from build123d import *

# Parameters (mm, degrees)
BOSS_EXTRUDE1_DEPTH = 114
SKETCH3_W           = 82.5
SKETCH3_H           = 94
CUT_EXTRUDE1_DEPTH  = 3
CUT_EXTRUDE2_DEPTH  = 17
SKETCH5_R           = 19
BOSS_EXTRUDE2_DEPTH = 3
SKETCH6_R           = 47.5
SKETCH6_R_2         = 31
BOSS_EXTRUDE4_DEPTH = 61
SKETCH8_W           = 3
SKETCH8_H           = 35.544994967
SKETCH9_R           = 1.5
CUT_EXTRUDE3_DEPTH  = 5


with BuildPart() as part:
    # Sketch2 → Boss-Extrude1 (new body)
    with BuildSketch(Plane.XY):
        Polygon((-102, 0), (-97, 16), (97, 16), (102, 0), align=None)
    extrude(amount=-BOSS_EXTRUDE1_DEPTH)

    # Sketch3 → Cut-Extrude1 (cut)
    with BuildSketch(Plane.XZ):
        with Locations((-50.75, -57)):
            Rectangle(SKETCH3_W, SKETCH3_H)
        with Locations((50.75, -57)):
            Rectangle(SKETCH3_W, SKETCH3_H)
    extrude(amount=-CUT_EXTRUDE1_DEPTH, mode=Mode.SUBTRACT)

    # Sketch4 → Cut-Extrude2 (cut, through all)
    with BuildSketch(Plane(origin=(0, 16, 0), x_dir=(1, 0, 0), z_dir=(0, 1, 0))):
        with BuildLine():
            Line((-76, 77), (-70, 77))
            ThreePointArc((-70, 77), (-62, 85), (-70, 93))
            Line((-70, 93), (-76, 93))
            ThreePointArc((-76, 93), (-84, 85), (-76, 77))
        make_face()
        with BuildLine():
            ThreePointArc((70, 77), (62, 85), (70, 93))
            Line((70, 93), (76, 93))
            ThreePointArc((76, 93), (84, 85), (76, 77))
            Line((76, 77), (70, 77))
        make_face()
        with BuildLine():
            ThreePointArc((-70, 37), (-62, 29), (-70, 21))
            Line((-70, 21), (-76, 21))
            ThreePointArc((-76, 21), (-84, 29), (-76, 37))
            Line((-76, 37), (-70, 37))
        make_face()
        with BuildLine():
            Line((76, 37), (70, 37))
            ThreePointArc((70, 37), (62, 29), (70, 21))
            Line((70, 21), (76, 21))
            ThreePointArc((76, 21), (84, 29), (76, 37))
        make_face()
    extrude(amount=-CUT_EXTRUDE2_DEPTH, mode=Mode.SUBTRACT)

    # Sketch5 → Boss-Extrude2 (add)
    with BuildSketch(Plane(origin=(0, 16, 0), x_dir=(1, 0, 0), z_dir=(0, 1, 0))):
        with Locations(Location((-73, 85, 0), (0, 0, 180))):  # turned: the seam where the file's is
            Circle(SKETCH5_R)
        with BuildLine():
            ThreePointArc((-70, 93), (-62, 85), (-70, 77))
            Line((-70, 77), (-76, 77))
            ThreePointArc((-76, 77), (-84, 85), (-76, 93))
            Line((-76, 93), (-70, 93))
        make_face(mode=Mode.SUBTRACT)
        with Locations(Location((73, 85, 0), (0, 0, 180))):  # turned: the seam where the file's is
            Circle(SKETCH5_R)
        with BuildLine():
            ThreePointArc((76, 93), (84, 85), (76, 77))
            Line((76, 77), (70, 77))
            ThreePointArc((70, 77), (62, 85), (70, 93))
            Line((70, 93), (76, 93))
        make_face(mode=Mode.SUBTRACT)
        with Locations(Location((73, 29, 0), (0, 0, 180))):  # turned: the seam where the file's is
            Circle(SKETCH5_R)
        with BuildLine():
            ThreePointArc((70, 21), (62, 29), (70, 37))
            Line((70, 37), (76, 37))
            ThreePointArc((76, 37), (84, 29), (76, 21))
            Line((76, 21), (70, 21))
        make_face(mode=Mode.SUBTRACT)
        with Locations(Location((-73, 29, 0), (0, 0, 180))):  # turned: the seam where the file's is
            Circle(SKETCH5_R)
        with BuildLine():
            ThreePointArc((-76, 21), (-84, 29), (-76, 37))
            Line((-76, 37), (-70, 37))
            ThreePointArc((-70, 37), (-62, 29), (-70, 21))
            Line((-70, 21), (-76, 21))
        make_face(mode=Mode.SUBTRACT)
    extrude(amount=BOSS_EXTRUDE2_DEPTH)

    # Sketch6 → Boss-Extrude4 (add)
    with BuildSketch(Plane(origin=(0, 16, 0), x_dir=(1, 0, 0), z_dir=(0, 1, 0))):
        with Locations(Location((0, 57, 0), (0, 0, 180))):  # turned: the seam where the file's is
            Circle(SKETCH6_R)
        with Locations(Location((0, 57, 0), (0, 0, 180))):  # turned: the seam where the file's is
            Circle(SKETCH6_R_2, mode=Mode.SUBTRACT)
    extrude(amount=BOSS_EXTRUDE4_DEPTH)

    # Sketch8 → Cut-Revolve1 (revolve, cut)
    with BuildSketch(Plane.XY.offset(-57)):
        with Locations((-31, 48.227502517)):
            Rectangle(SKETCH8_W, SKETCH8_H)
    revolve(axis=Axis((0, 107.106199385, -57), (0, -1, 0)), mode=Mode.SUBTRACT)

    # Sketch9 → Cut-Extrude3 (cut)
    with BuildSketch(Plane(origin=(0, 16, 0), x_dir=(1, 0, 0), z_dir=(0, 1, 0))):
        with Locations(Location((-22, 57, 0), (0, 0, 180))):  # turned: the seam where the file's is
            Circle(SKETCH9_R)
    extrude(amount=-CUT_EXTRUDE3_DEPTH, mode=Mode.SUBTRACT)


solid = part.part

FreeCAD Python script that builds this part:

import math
import FreeCAD as App
import Part
import Sketcher

doc = App.newDocument("Part")
params = doc.addObject("Spreadsheet::Sheet", "Params")
for row, (alias, value) in enumerate([
    ("sketch1_width", "204 mm"),
    ("sketch1_width2", "194 mm"),
    ("pad1_length", "114 mm"),
    ("sketch2_height", "94 mm"),
    ("sketch2_width", "82.5 mm"),
    ("pocket1_length", "3 mm"),
    ("sketch3_radius", "8 mm"),
    ("sketch3_width", "6 mm"),
    ("sketch4_diameter", "38 mm"),
    ("sketch4_radius", "8 mm"),
    ("sketch4_width", "6 mm"),
    ("pad2_length", "3 mm"),
    ("sketch5_diameter", "95 mm"),
    ("sketch5_diameter2", "62 mm"),
    ("pad3_length", "61 mm"),
    ("sketch6_width", "3 mm"),
    ("groove_angle", "360 deg"),
    ("sketch7_diameter", "3 mm"),
    ("pocket3_length", "5 mm"),
], start=1):
    params.set(f"A{row}", alias)
    params.set(f"B{row}", "=" + value)
    params.setAlias(f"B{row}", alias)

body = doc.addObject("PartDesign::Body", "Body")

sketch1 = body.newObject("Sketcher::SketchObject", "Sketch")
sketch1.AttachmentSupport = (doc.getObject("XY_Plane"), [""])
sketch1.MapMode = "FlatFace"
sketch1.addGeometry([
    Part.LineSegment(App.Vector(-97, 16, 0), App.Vector(-102, 0, 0)),
    Part.LineSegment(App.Vector(-102, 0, 0), App.Vector(102, 0, 0)),
    Part.LineSegment(App.Vector(102, 0, 0), App.Vector(97, 16, 0)),
    Part.LineSegment(App.Vector(97, 16, 0), App.Vector(-97, 16, 0)),
], False)
sketch1.addConstraint([
    Sketcher.Constraint("Coincident", 0, 2, 1, 1),
    Sketcher.Constraint("Coincident", 1, 2, 2, 1),
    Sketcher.Constraint("Coincident", 2, 2, 3, 1),
    Sketcher.Constraint("Coincident", 3, 2, 0, 1),
    Sketcher.Constraint("Horizontal", 1),
    Sketcher.Constraint("Horizontal", 3),
    Sketcher.Constraint("Symmetric", 0, 2, 1, 2, -1, 1),
    Sketcher.Constraint("Equal", 0, 2),
    Sketcher.Constraint("DistanceX", 1, 1, 1, 2, 204.0),
    Sketcher.Constraint("DistanceX", 3, 2, 3, 1, 194.0),
    Sketcher.Constraint("DistanceY", -1, 1, 2, 2, 16.0),
])
sketch1.setExpression("Constraints[8]", "Params.sketch1_width")
sketch1.setExpression("Constraints[9]", "Params.sketch1_width2")
pad1 = body.newObject("PartDesign::Pad", "Pad")
pad1.Profile = sketch1
pad1.setExpression("Length", "Params.pad1_length")
pad1.Reversed = True

sketch2 = body.newObject("Sketcher::SketchObject", "Sketch001")
sketch2.AttachmentSupport = (doc.getObject("XZ_Plane"), [""])
sketch2.MapMode = "FlatFace"
sketch2.addGeometry([
    Part.LineSegment(App.Vector(-92, -10, 0), App.Vector(-92, -104, 0)),
    Part.LineSegment(App.Vector(-92, -104, 0), App.Vector(-10, -104, 0)),
    Part.LineSegment(App.Vector(-10, -104, 0), App.Vector(-10, -10, 0)),
    Part.LineSegment(App.Vector(-10, -10, 0), App.Vector(-92, -10, 0)),
    Part.LineSegment(App.Vector(10, -10, 0), App.Vector(10, -104, 0)),
    Part.LineSegment(App.Vector(10, -104, 0), App.Vector(92, -104, 0)),
    Part.LineSegment(App.Vector(92, -104, 0), App.Vector(92, -10, 0)),
    Part.LineSegment(App.Vector(92, -10, 0), App.Vector(10, -10, 0)),
], False)
sketch2.addConstraint([
    Sketcher.Constraint("Coincident", 0, 2, 1, 1),
    Sketcher.Constraint("Coincident", 1, 2, 2, 1),
    Sketcher.Constraint("Coincident", 2, 2, 3, 1),
    Sketcher.Constraint("Coincident", 3, 2, 0, 1),
    Sketcher.Constraint("Coincident", 4, 2, 5, 1),
    Sketcher.Constraint("Coincident", 5, 2, 6, 1),
    Sketcher.Constraint("Coincident", 6, 2, 7, 1),
    Sketcher.Constraint("Coincident", 7, 2, 4, 1),
    Sketcher.Constraint("Vertical", 0),
    Sketcher.Constraint("Horizontal", 1),
    Sketcher.Constraint("Vertical", 2),
    Sketcher.Constraint("Horizontal", 3),
    Sketcher.Constraint("Vertical", 4),
    Sketcher.Constraint("Horizontal", 5),
    Sketcher.Constraint("Vertical", 6),
    Sketcher.Constraint("Horizontal", 7),
    Sketcher.Constraint("Symmetric", 1, 2, 4, 2, -2),
    Sketcher.Constraint("Symmetric", 3, 2, 6, 2, -2),
    Sketcher.Constraint("DistanceY", 0, 2, 0, 1, 94.0),
    Sketcher.Constraint("DistanceX", 1, 1, 1, 2, 82.5),
    Sketcher.Constraint("DistanceX", 0, 2, -1, 1, 92.0),
    Sketcher.Constraint("DistanceY", 0, 2, -1, 1, 104.0),
])
sketch2.setExpression("Constraints[18]", "Params.sketch2_height")
sketch2.setExpression("Constraints[19]", "Params.sketch2_width")
pocket1 = body.newObject("PartDesign::Pocket", "Pocket")
pocket1.Profile = sketch2
pocket1.setExpression("Length", "Params.pocket1_length")

sketch3 = body.newObject("Sketcher::SketchObject", "Sketch002")
sketch3.AttachmentSupport = (doc.getObject("XZ_Plane"), [""])
sketch3.MapMode = "FlatFace"
sketch3.AttachmentOffset = App.Placement(App.Vector(0, 0, -16), App.Rotation())
sketch3.addGeometry([
    Part.LineSegment(App.Vector(-76, -77, 0), App.Vector(-70, -77, 0)),
    Part.ArcOfCircle(Part.Circle(App.Vector(-70, -85, 0), App.Vector(0, 0, 1), 8), math.radians(-90), math.radians(90)),
    Part.LineSegment(App.Vector(-70, -93, 0), App.Vector(-76, -93, 0)),
    Part.ArcOfCircle(Part.Circle(App.Vector(-76, -85, 0), App.Vector(0, 0, 1), 8), math.radians(90), math.radians(270)),
    Part.ArcOfCircle(Part.Circle(App.Vector(70, -85, 0), App.Vector(0, 0, 1), 8), math.radians(90), math.radians(270)),
    Part.LineSegment(App.Vector(70, -77, 0), App.Vector(76, -77, 0)),
    Part.ArcOfCircle(Part.Circle(App.Vector(76, -85, 0), App.Vector(0, 0, 1), 8), math.radians(-90), math.radians(90)),
    Part.LineSegment(App.Vector(76, -93, 0), App.Vector(70, -93, 0)),
    Part.ArcOfCircle(Part.Circle(App.Vector(-70, -29, 0), App.Vector(0, 0, 1), 8), math.radians(-90), math.radians(90)),
    Part.LineSegment(App.Vector(-70, -37, 0), App.Vector(-76, -37, 0)),
    Part.ArcOfCircle(Part.Circle(App.Vector(-76, -29, 0), App.Vector(0, 0, 1), 8), math.radians(90), math.radians(270)),
    Part.LineSegment(App.Vector(-76, -21, 0), App.Vector(-70, -21, 0)),
    Part.LineSegment(App.Vector(76, -37, 0), App.Vector(70, -37, 0)),
    Part.ArcOfCircle(Part.Circle(App.Vector(70, -29, 0), App.Vector(0, 0, 1), 8), math.radians(90), math.radians(270)),
    Part.LineSegment(App.Vector(70, -21, 0), App.Vector(76, -21, 0)),
    Part.ArcOfCircle(Part.Circle(App.Vector(76, -29, 0), App.Vector(0, 0, 1), 8), math.radians(-90), math.radians(90)),
], False)
sketch3.addConstraint([
    Sketcher.Constraint("Tangent", 0, 2, 1, 2),
    Sketcher.Constraint("Tangent", 1, 1, 2, 1),
    Sketcher.Constraint("Tangent", 2, 2, 3, 2),
    Sketcher.Constraint("Tangent", 3, 1, 0, 1),
    Sketcher.Constraint("Tangent", 4, 1, 5, 1),
    Sketcher.Constraint("Tangent", 5, 2, 6, 2),
    Sketcher.Constraint("Tangent", 6, 1, 7, 1),
    Sketcher.Constraint("Tangent", 7, 2, 4, 2),
    Sketcher.Constraint("Tangent", 8, 1, 9, 1),
    Sketcher.Constraint("Tangent", 9, 2, 10, 2),
    Sketcher.Constraint("Tangent", 10, 1, 11, 1),
    Sketcher.Constraint("Tangent", 11, 2, 8, 2),
    Sketcher.Constraint("Tangent", 12, 2, 13, 2),
    Sketcher.Constraint("Tangent", 13, 1, 14, 1),
    Sketcher.Constraint("Tangent", 14, 2, 15, 2),
    Sketcher.Constraint("Tangent", 15, 1, 12, 1),
    Sketcher.Constraint("Horizontal", 0),
    Sketcher.Constraint("Horizontal", 2),
    Sketcher.Constraint("Horizontal", 5),
    Sketcher.Constraint("Horizontal", 7),
    Sketcher.Constraint("Horizontal", 9),
    Sketcher.Constraint("Horizontal", 11),
    Sketcher.Constraint("Horizontal", 12),
    Sketcher.Constraint("Horizontal", 14),
    Sketcher.Constraint("Equal", 3, 4),
    Sketcher.Constraint("Equal", 6, 8),
    Sketcher.Constraint("Equal", 10, 13),
    Sketcher.Constraint("Symmetric", 1, 3, 4, 3, -2),
    Sketcher.Constraint("Symmetric", 8, 3, 13, 3, -2),
    Sketcher.Constraint("Vertical", 1, 3, 8, 3),
    Sketcher.Constraint("Vertical", 3, 3, 10, 3),
    Sketcher.Constraint("Vertical", 6, 3, 15, 3),
    Sketcher.Constraint("Equal", 2, 5),
    Sketcher.Constraint("Radius", 1, 8.0),
    Sketcher.Constraint("DistanceX", 0, 1, 0, 2, 6.0),
    Sketcher.Constraint("DistanceX", 1, 3, -1, 1, 70.0),
    Sketcher.Constraint("DistanceY", 1, 3, -1, 1, 85.0),
    Sketcher.Constraint("DistanceY", 8, 3, -1, 1, 29.0),
])
sketch3.setExpression("Constraints[33]", "Params.sketch3_radius")
sketch3.setExpression("Constraints[34]", "Params.sketch3_width")
pocket2 = body.newObject("PartDesign::Pocket", "Pocket001")
pocket2.Profile = sketch3
pocket2.Type = "ThroughAll"
pocket2.Reversed = True

sketch4 = body.newObject("Sketcher::SketchObject", "Sketch003")
sketch4.AttachmentSupport = (doc.getObject("XZ_Plane"), [""])
sketch4.MapMode = "FlatFace"
sketch4.AttachmentOffset = App.Placement(App.Vector(0, 0, -16), App.Rotation())
sketch4.addGeometry([
    Part.Circle(App.Vector(-73, -85, 0), App.Vector(0, 0, 1), 19),
    Part.LineSegment(App.Vector(-76, -93, 0), App.Vector(-70, -93, 0)),
    Part.ArcOfCircle(Part.Circle(App.Vector(-70, -85, 0), App.Vector(0, 0, 1), 8), math.radians(-90), math.radians(90)),
    Part.LineSegment(App.Vector(-70, -77, 0), App.Vector(-76, -77, 0)),
    Part.ArcOfCircle(Part.Circle(App.Vector(-76, -85, 0), App.Vector(0, 0, 1), 8), math.radians(90), math.radians(270)),
    Part.Circle(App.Vector(73, -85, 0), App.Vector(0, 0, 1), 19),
    Part.LineSegment(App.Vector(70, -93, 0), App.Vector(76, -93, 0)),
    Part.ArcOfCircle(Part.Circle(App.Vector(76, -85, 0), App.Vector(0, 0, 1), 8), math.radians(-90), math.radians(90)),
    Part.LineSegment(App.Vector(76, -77, 0), App.Vector(70, -77, 0)),
    Part.ArcOfCircle(Part.Circle(App.Vector(70, -85, 0), App.Vector(0, 0, 1), 8), math.radians(90), math.radians(270)),
    Part.Circle(App.Vector(73, -29, 0), App.Vector(0, 0, 1), 19),
    Part.LineSegment(App.Vector(76, -21, 0), App.Vector(70, -21, 0)),
    Part.ArcOfCircle(Part.Circle(App.Vector(70, -29, 0), App.Vector(0, 0, 1), 8), math.radians(90), math.radians(270)),
    Part.LineSegment(App.Vector(70, -37, 0), App.Vector(76, -37, 0)),
    Part.ArcOfCircle(Part.Circle(App.Vector(76, -29, 0), App.Vector(0, 0, 1), 8), math.radians(-90), math.radians(90)),
    Part.Circle(App.Vector(-73, -29, 0), App.Vector(0, 0, 1), 19),
    Part.LineSegment(App.Vector(-70, -21, 0), App.Vector(-76, -21, 0)),
    Part.ArcOfCircle(Part.Circle(App.Vector(-76, -29, 0), App.Vector(0, 0, 1), 8), math.radians(90), math.radians(270)),
    Part.LineSegment(App.Vector(-76, -37, 0), App.Vector(-70, -37, 0)),
    Part.ArcOfCircle(Part.Circle(App.Vector(-70, -29, 0), App.Vector(0, 0, 1), 8), math.radians(-90), math.radians(90)),
], False)
sketch4.addConstraint([
    Sketcher.Constraint("Tangent", 1, 2, 2, 1),
    Sketcher.Constraint("Tangent", 2, 2, 3, 1),
    Sketcher.Constraint("Tangent", 3, 2, 4, 1),
    Sketcher.Constraint("Tangent", 4, 2, 1, 1),
    Sketcher.Constraint("Tangent", 6, 2, 7, 1),
    Sketcher.Constraint("Tangent", 7, 2, 8, 1),
    Sketcher.Constraint("Tangent", 8, 2, 9, 1),
    Sketcher.Constraint("Tangent", 9, 2, 6, 1),
    Sketcher.Constraint("Tangent", 11, 2, 12, 1),
    Sketcher.Constraint("Tangent", 12, 2, 13, 1),
    Sketcher.Constraint("Tangent", 13, 2, 14, 1),
    Sketcher.Constraint("Tangent", 14, 2, 11, 1),
    Sketcher.Constraint("Tangent", 16, 2, 17, 1),
    Sketcher.Constraint("Tangent", 17, 2, 18, 1),
    Sketcher.Constraint("Tangent", 18, 2, 19, 1),
    Sketcher.Constraint("Tangent", 19, 2, 16, 1),
    Sketcher.Constraint("Horizontal", 1),
    Sketcher.Constraint("Horizontal", 3),
    Sketcher.Constraint("Horizontal", 6),
    Sketcher.Constraint("Horizontal", 8),
    Sketcher.Constraint("Horizontal", 11),
    Sketcher.Constraint("Horizontal", 13),
    Sketcher.Constraint("Horizontal", 16),
    Sketcher.Constraint("Horizontal", 18),
    Sketcher.Constraint("Equal", 0, 5),
    Sketcher.Constraint("Equal", 4, 7),
    Sketcher.Constraint("Equal", 5, 10),
    Sketcher.Constraint("Equal", 9, 12),
    Sketcher.Constraint("Equal", 10, 15),
    Sketcher.Constraint("Equal", 14, 17),
    Sketcher.Constraint("Symmetric", 0, 3, 5, 3, -2),
    Sketcher.Constraint("Symmetric", 4, 3, 7, 3, -2),
    Sketcher.Constraint("Symmetric", 10, 3, 15, 3, -2),
    Sketcher.Constraint("Symmetric", 14, 3, 17, 3, -2),
    Sketcher.Constraint("Horizontal", 0, 3, 2, 3),
    Sketcher.Constraint("Horizontal", 10, 3, 12, 3),
    Sketcher.Constraint("Vertical", 5, 3, 10, 3),
    Sketcher.Constraint("Vertical", 9, 3, 12, 3),
    Sketcher.Constraint("Vertical", 7, 3, 14, 3),
    Sketcher.Constraint("Vertical", 2, 3, 19, 3),
    Sketcher.Constraint("Equal", 3, 6),
    Sketcher.Constraint("Diameter", 0, 38.0),
    Sketcher.Constraint("Radius", 2, 8.0),
    Sketcher.Constraint("DistanceX", 1, 1, 1, 2, 6.0),
    Sketcher.Constraint("DistanceX", 0, 3, -1, 1, 73.0),
    Sketcher.Constraint("DistanceY", 0, 3, -1, 1, 85.0),
    Sketcher.Constraint("DistanceX", 2, 3, -1, 1, 70.0),
    Sketcher.Constraint("DistanceY", 10, 3, -1, 1, 29.0),
])
sketch4.setExpression("Constraints[41]", "Params.sketch4_diameter")
sketch4.setExpression("Constraints[42]", "Params.sketch4_radius")
sketch4.setExpression("Constraints[43]", "Params.sketch4_width")
pad2 = body.newObject("PartDesign::Pad", "Pad001")
pad2.Profile = sketch4
pad2.setExpression("Length", "Params.pad2_length")
pad2.Reversed = True

sketch5 = body.newObject("Sketcher::SketchObject", "Sketch004")
sketch5.AttachmentSupport = (doc.getObject("XZ_Plane"), [""])
sketch5.MapMode = "FlatFace"
sketch5.AttachmentOffset = App.Placement(App.Vector(0, 0, -16), App.Rotation())
sketch5.addGeometry([
    Part.Circle(App.Vector(0, -57, 0), App.Vector(0, 0, 1), 48),
    Part.Circle(App.Vector(0, -57, 0), App.Vector(0, 0, 1), 31),
], False)
sketch5.addConstraint([
    Sketcher.Constraint("Coincident", 1, 3, 0, 3),
    Sketcher.Constraint("PointOnObject", 0, 3, -2),
    Sketcher.Constraint("Diameter", 0, 95.0),
    Sketcher.Constraint("Diameter", 1, 62.0),
    Sketcher.Constraint("DistanceY", 0, 3, -1, 1, 57.0),
])
sketch5.setExpression("Constraints[2]", "Params.sketch5_diameter")
sketch5.setExpression("Constraints[3]", "Params.sketch5_diameter2")
pad3 = body.newObject("PartDesign::Pad", "Pad002")
pad3.Profile = sketch5
pad3.setExpression("Length", "Params.pad3_length")
pad3.Reversed = True

sketch6 = body.newObject("Sketcher::SketchObject", "Sketch005")
sketch6.AttachmentSupport = (doc.getObject("XY_Plane"), [""])
sketch6.MapMode = "FlatFace"
sketch6.AttachmentOffset = App.Placement(App.Vector(0, 0, -57), App.Rotation())
sketch6.addGeometry([
    Part.LineSegment(App.Vector(-32.5, 66, 0), App.Vector(-32.5, 30.5, 0)),
    Part.LineSegment(App.Vector(-32.5, 30.5, 0), App.Vector(-29.5, 30.5, 0)),
    Part.LineSegment(App.Vector(-29.5, 30.5, 0), App.Vector(-29.5, 66, 0)),
    Part.LineSegment(App.Vector(-29.5, 66, 0), App.Vector(-32.5, 66, 0)),
], False)
sketch6.addConstraint([
    Sketcher.Constraint("Coincident", 0, 2, 1, 1),
    Sketcher.Constraint("Coincident", 1, 2, 2, 1),
    Sketcher.Constraint("Coincident", 2, 2, 3, 1),
    Sketcher.Constraint("Coincident", 3, 2, 0, 1),
    Sketcher.Constraint("Vertical", 0),
    Sketcher.Constraint("Horizontal", 1),
    Sketcher.Constraint("Vertical", 2),
    Sketcher.Constraint("Horizontal", 3),
    Sketcher.Constraint("DistanceX", 1, 1, 1, 2, 3.0),
    Sketcher.Constraint("DistanceY", -1, 1, 2, 2, 66.0),
    Sketcher.Constraint("DistanceX", 0, 2, -1, 1, 32.5),
    Sketcher.Constraint("DistanceY", 0, 2, 0, 1, 35.544995),
])
sketch6.setExpression("Constraints[8]", "Params.sketch6_width")
groove = body.newObject("PartDesign::Groove", "Groove")
groove.Profile = sketch6
groove.ReferenceAxis = (sketch6, ["V_Axis"])
groove.setExpression("Angle", "Params.groove_angle")

sketch7 = body.newObject("Sketcher::SketchObject", "Sketch006")
sketch7.AttachmentSupport = (doc.getObject("XZ_Plane"), [""])
sketch7.MapMode = "FlatFace"
sketch7.AttachmentOffset = App.Placement(App.Vector(0, 0, -16), App.Rotation())
sketch7.addGeometry(Part.Circle(App.Vector(-22, -57, 0), App.Vector(0, 0, 1), 1.5), False)
sketch7.addConstraint([
    Sketcher.Constraint("Diameter", 0, 3.0),
    Sketcher.Constraint("DistanceX", 0, 3, -1, 1, 22.0),
    Sketcher.Constraint("DistanceY", 0, 3, -1, 1, 57.0),
])
sketch7.setExpression("Constraints[0]", "Params.sketch7_diameter")
pocket3 = body.newObject("PartDesign::Pocket", "Pocket002")
pocket3.Profile = sketch7
pocket3.setExpression("Length", "Params.pocket3_length")
pocket3.Reversed = True

doc.recompute()
